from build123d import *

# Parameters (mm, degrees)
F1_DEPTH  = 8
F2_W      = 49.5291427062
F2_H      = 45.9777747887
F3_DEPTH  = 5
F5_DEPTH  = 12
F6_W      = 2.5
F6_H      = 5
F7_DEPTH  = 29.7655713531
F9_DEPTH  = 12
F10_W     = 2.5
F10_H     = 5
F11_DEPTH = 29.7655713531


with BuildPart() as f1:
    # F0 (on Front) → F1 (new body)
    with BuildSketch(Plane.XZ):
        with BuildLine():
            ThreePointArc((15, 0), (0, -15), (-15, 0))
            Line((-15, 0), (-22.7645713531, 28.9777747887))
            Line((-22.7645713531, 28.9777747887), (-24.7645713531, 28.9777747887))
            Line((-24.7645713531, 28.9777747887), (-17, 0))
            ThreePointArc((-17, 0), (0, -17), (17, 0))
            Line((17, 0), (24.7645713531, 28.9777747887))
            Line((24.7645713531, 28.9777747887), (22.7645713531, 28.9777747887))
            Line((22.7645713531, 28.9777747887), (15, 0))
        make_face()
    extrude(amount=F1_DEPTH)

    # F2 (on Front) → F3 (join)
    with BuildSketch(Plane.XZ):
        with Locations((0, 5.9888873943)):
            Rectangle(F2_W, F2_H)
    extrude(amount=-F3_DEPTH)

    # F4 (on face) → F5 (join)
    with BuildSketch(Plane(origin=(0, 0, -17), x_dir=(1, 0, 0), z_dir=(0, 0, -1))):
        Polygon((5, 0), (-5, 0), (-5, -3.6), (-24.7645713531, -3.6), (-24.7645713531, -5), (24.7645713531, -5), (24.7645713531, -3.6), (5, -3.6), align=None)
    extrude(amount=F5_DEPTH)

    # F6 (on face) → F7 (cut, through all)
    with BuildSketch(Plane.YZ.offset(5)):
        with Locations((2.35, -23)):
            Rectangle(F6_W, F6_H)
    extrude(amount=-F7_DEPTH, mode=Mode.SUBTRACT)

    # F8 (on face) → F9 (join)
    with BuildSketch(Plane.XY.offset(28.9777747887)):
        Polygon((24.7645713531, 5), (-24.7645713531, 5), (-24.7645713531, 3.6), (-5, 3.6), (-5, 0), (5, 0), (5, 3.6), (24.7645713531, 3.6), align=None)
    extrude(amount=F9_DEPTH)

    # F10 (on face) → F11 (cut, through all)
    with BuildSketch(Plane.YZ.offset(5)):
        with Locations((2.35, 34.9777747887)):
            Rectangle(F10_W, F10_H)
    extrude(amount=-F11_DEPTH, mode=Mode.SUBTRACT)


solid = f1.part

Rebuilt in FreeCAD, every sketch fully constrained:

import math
import FreeCAD as App
import Part
import Sketcher
from FreeCAD import Vector
Q = App.Units.Quantity

doc = App.newDocument("Part")
body = doc.addObject("PartDesign::Body", "Body")

sketch1 = body.newObject("Sketcher::SketchObject", "Sketch")
sketch1.AttachmentSupport = (doc.getObject("XZ_Plane"), [""])
sketch1.MapMode = "FlatFace"
sketch1.addGeometry([
    Part.ArcOfCircle(Part.Circle(Vector(0, 0, 0), Vector(0, 0, 1), 15), math.radians(180), math.radians(360)),
    Part.LineSegment(Vector(-15, 0, 0), Vector(-22.764571, 28.977775, 0)),
    Part.LineSegment(Vector(-22.764571, 28.977775, 0), Vector(-24.764571, 28.977775, 0)),
    Part.LineSegment(Vector(-24.764571, 28.977775, 0), Vector(-17, 0, 0)),
    Part.ArcOfCircle(Part.Circle(Vector(0, 0, 0), Vector(0, 0, 1), 17), math.radians(180), math.radians(360)),
    Part.LineSegment(Vector(17, 0, 0), Vector(24.764571, 28.977775, 0)),
    Part.LineSegment(Vector(24.764571, 28.977775, 0), Vector(22.764571, 28.977775, 0)),
    Part.LineSegment(Vector(22.764571, 28.977775, 0), Vector(15, 0, 0)),
], False)
sketch1.addConstraint([
    Sketcher.Constraint("Coincident", 0, 1, 1, 1),
    Sketcher.Constraint("Coincident", 1, 2, 2, 1),
    Sketcher.Constraint("Coincident", 2, 2, 3, 1),
    Sketcher.Constraint("Coincident", 3, 2, 4, 1),
    Sketcher.Constraint("Coincident", 4, 2, 5, 1),
    Sketcher.Constraint("Coincident", 5, 2, 6, 1),
    Sketcher.Constraint("Coincident", 6, 2, 7, 1),
    Sketcher.Constraint("Coincident", 7, 2, 0, 2),
    Sketcher.Constraint("Horizontal", 2),
    Sketcher.Constraint("Horizontal", 6),
    Sketcher.Constraint("Coincident", 0, 3, -1, 1),
    Sketcher.Constraint("Coincident", 4, 3, -1, 1),
    Sketcher.Constraint("Symmetric", 2, 2, 5, 2, -2),
    Sketcher.Constraint("PointOnObject", 0, 1, -1),
    Sketcher.Constraint("PointOnObject", 3, 2, -1),
    Sketcher.Constraint("PointOnObject", 4, 2, -1),
    Sketcher.Constraint("PointOnObject", 7, 2, -1),
    Sketcher.Constraint("Parallel", 1, 3),
    Sketcher.Constraint("Parallel", 5, 7),
    Sketcher.Constraint("Radius", 0, 15.0),
    Sketcher.Constraint("Radius", 4, 17.0),
    Sketcher.Constraint("Angle", 1, Q("105 deg")),
    Sketcher.Constraint("Distance", 1, 30.0),
])
pad1 = body.newObject("PartDesign::Pad", "Pad")
pad1.Profile = sketch1
pad1.Length = 8

sketch2 = body.newObject("Sketcher::SketchObject", "Sketch001")
sketch2.AttachmentSupport = (doc.getObject("XZ_Plane"), [""])
sketch2.MapMode = "FlatFace"
sketch2.addGeometry([
    Part.LineSegment(Vector(-24.764571, 28.977775, 0), Vector(-24.764571, -17, 0)),
    Part.LineSegment(Vector(-24.764571, -17, 0), Vector(24.764571, -17, 0)),
    Part.LineSegment(Vector(24.764571, -17, 0), Vector(24.764571, 28.977775, 0)),
    Part.LineSegment(Vector(24.764571, 28.977775, 0), Vector(-24.764571, 28.977775, 0)),
], False)
sketch2.addConstraint([
    Sketcher.Constraint("Coincident", 0, 2, 1, 1),
    Sketcher.Constraint("Coincident", 1, 2, 2, 1),
    Sketcher.Constraint("Coincident", 2, 2, 3, 1),
    Sketcher.Constraint("Coincident", 3, 2, 0, 1),
    Sketcher.Constraint("Vertical", 0),
    Sketcher.Constraint("Horizontal", 1),
    Sketcher.Constraint("Vertical", 2),
    Sketcher.Constraint("Horizontal", 3),
    Sketcher.Constraint("DistanceY", 0, 2, -1, 1, 17.0),
    Sketcher.Constraint("DistanceX", 1, 1, 1, 2, 49.529143),
    Sketcher.Constraint("DistanceY", 0, 2, 0, 1, 45.977775),
    Sketcher.Constraint("DistanceX", 0, 2, -1, 1, 24.764571),
])
pad2 = body.newObject("PartDesign::Pad", "Pad001")
pad2.Profile = sketch2
pad2.Length = 5
pad2.Reversed = True

sketch3 = body.newObject("Sketcher::SketchObject", "Sketch002")
sketch3.AttachmentSupport = (doc.getObject("XY_Plane"), [""])
sketch3.MapMode = "FlatFace"
sketch3.AttachmentOffset = App.Placement(Vector(0, 0, -17), App.Rotation())
sketch3.addGeometry([
    Part.LineSegment(Vector(5, 0, 0), Vector(-5, 0, 0)),
    Part.LineSegment(Vector(-5, 0, 0), Vector(-5, 3.6, 0)),
    Part.LineSegment(Vector(-5, 3.6, 0), Vector(-24.764571, 3.6, 0)),
    Part.LineSegment(Vector(-24.764571, 3.6, 0), Vector(-24.764571, 5, 0)),
    Part.LineSegment(Vector(-24.764571, 5, 0), Vector(24.764571, 5, 0)),
    Part.LineSegment(Vector(24.764571, 5, 0), Vector(24.764571, 3.6, 0)),
    Part.LineSegment(Vector(24.764571, 3.6, 0), Vector(5, 3.6, 0)),
    Part.LineSegment(Vector(5, 3.6, 0), Vector(5, 0, 0)),
], False)
sketch3.addConstraint([
    Sketcher.Constraint("Coincident", 0, 2, 1, 1),
    Sketcher.Constraint("Coincident", 1, 2, 2, 1),
    Sketcher.Constraint("Coincident", 2, 2, 3, 1),
    Sketcher.Constraint("Coincident", 3, 2, 4, 1),
    Sketcher.Constraint("Coincident", 4, 2, 5, 1),
    Sketcher.Constraint("Coincident", 5, 2, 6, 1),
    Sketcher.Constraint("Coincident", 6, 2, 7, 1),
    Sketcher.Constraint("Coincident", 7, 2, 0, 1),
    Sketcher.Constraint("Horizontal", 0),
    Sketcher.Constraint("Vertical", 1),
    Sketcher.Constraint("Horizontal", 2),
    Sketcher.Constraint("Vertical", 3),
    Sketcher.Constraint("Horizontal", 4),
    Sketcher.Constraint("Vertical", 5),
    Sketcher.Constraint("Horizontal", 6),
    Sketcher.Constraint("Vertical", 7),
    Sketcher.Constraint("Symmetric", 0, 2, 7, 2, -1, 1),
    Sketcher.Constraint("Symmetric", 2, 2, 5, 2, -2),
    Sketcher.Constraint("DistanceX", 0, 2, 0, 1, 10.0),
    Sketcher.Constraint("DistanceY", 1, 1, 1, 2, 3.6),
    Sketcher.Constraint("DistanceY", 3, 1, 3, 2, 1.4),
    Sketcher.Constraint("DistanceX", 2, 2, 2, 1, 19.764571),
])
pad3 = body.newObject("PartDesign::Pad", "Pad002")
pad3.Profile = sketch3
pad3.Length = 12
pad3.Reversed = True

sketch4 = body.newObject("Sketcher::SketchObject", "Sketch003")
sketch4.AttachmentSupport = (doc.getObject("YZ_Plane"), [""])
sketch4.MapMode = "FlatFace"
sketch4.AttachmentOffset = App.Placement(Vector(0, 0, 5), App.Rotation())
sketch4.addGeometry([
    Part.LineSegment(Vector(1.1, -20.5, 0), Vector(1.1, -25.5, 0)),
    Part.LineSegment(Vector(1.1, -25.5, 0), Vector(3.6, -25.5, 0)),
    Part.LineSegment(Vector(3.6, -25.5, 0), Vector(3.6, -20.5, 0)),
    Part.LineSegment(Vector(3.6, -20.5, 0), Vector(1.1, -20.5, 0)),
], False)
sketch4.addConstraint([
    Sketcher.Constraint("Coincident", 0, 2, 1, 1),
    Sketcher.Constraint("Coincident", 1, 2, 2, 1),
    Sketcher.Constraint("Coincident", 2, 2, 3, 1),
    Sketcher.Constraint("Coincident", 3, 2, 0, 1),
    Sketcher.Constraint("Vertical", 0),
    Sketcher.Constraint("Horizontal", 1),
    Sketcher.Constraint("Vertical", 2),
    Sketcher.Constraint("Horizontal", 3),
    Sketcher.Constraint("DistanceY", 0, 2, 0, 1, 5.0),
    Sketcher.Constraint("DistanceX", 1, 1, 1, 2, 2.5),
    Sketcher.Constraint("DistanceX", -1, 1, 0, 2, 1.1),
    Sketcher.Constraint("DistanceY", 0, 2, -1, 1, 25.5),
])
pocket1 = body.newObject("PartDesign::Pocket", "Pocket")
pocket1.Profile = sketch4
pocket1.Type = "ThroughAll"

sketch5 = body.newObject("Sketcher::SketchObject", "Sketch004")
sketch5.AttachmentSupport = (doc.getObject("XY_Plane"), [""])
sketch5.MapMode = "FlatFace"
sketch5.AttachmentOffset = App.Placement(Vector(0, 0, 28.977775), App.Rotation())
sketch5.addGeometry([
    Part.LineSegment(Vector(24.764571, 5, 0), Vector(-24.764571, 5, 0)),
    Part.LineSegment(Vector(-24.764571, 5, 0), Vector(-24.764571, 3.6, 0)),
    Part.LineSegment(Vector(-24.764571, 3.6, 0), Vector(-5, 3.6, 0)),
    Part.LineSegment(Vector(-5, 3.6, 0), Vector(-5, 0, 0)),
    Part.LineSegment(Vector(-5, 0, 0), Vector(5, 0, 0)),
    Part.LineSegment(Vector(5, 0, 0), Vector(5, 3.6, 0)),
    Part.LineSegment(Vector(5, 3.6, 0), Vector(24.764571, 3.6, 0)),
    Part.LineSegment(Vector(24.764571, 3.6, 0), Vector(24.764571, 5, 0)),
], False)
sketch5.addConstraint([
    Sketcher.Constraint("Coincident", 0, 2, 1, 1),
    Sketcher.Constraint("Coincident", 1, 2, 2, 1),
    Sketcher.Constraint("Coincident", 2, 2, 3, 1),
    Sketcher.Constraint("Coincident", 3, 2, 4, 1),
    Sketcher.Constraint("Coincident", 4, 2, 5, 1),
    Sketcher.Constraint("Coincident", 5, 2, 6, 1),
    Sketcher.Constraint("Coincident", 6, 2, 7, 1),
    Sketcher.Constraint("Coincident", 7, 2, 0, 1),
    Sketcher.Constraint("Horizontal", 0),
    Sketcher.Constraint("Vertical", 1),
    Sketcher.Constraint("Horizontal", 2),
    Sketcher.Constraint("Vertical", 3),
    Sketcher.Constraint("Horizontal", 4),
    Sketcher.Constraint("Vertical", 5),
    Sketcher.Constraint("Horizontal", 6),
    Sketcher.Constraint("Vertical", 7),
    Sketcher.Constraint("Symmetric", 3, 2, 4, 2, -1, 1),
    Sketcher.Constraint("Symmetric", 1, 2, 6, 2, -2),
    Sketcher.Constraint("DistanceX", 4, 1, 4, 2, 10.0),
    Sketcher.Constraint("DistanceY", 1, 2, 1, 1, 1.4),
    Sketcher.Constraint("DistanceY", 3, 2, 3, 1, 3.6),
    Sketcher.Constraint("DistanceX", 2, 1, 2, 2, 19.764571),
])
pad4 = body.newObject("PartDesign::Pad", "Pad003")
pad4.Profile = sketch5
pad4.Length = 12

sketch6 = body.newObject("Sketcher::SketchObject", "Sketch005")
sketch6.AttachmentSupport = (doc.getObject("YZ_Plane"), [""])
sketch6.MapMode = "FlatFace"
sketch6.AttachmentOffset = App.Placement(Vector(0, 0, 5), App.Rotation())
sketch6.addGeometry([
    Part.LineSegment(Vector(1.1, 37.477775, 0), Vector(1.1, 32.477775, 0)),
    Part.LineSegment(Vector(1.1, 32.477775, 0), Vector(3.6, 32.477775, 0)),
    Part.LineSegment(Vector(3.6, 32.477775, 0), Vector(3.6, 37.477775, 0)),
    Part.LineSegment(Vector(3.6, 37.477775, 0), Vector(1.1, 37.477775, 0)),
], False)
sketch6.addConstraint([
    Sketcher.Constraint("Coincident", 0, 2, 1, 1),
    Sketcher.Constraint("Coincident", 1, 2, 2, 1),
    Sketcher.Constraint("Coincident", 2, 2, 3, 1),
    Sketcher.Constraint("Coincident", 3, 2, 0, 1),
    Sketcher.Constraint("Vertical", 0),
    Sketcher.Constraint("Horizontal", 1),
    Sketcher.Constraint("Vertical", 2),
    Sketcher.Constraint("Horizontal", 3),
    Sketcher.Constraint("DistanceY", 0, 2, 0, 1, 5.0),
    Sketcher.Constraint("DistanceX", 1, 1, 1, 2, 2.5),
    Sketcher.Constraint("DistanceX", -1, 1, 0, 2, 1.1),
    Sketcher.Constraint("DistanceY", -1, 1, 0, 2, 32.477775),
])
pocket2 = body.newObject("PartDesign::Pocket", "Pocket001")
pocket2.Profile = sketch6
pocket2.Type = "ThroughAll"

doc.recompute()
